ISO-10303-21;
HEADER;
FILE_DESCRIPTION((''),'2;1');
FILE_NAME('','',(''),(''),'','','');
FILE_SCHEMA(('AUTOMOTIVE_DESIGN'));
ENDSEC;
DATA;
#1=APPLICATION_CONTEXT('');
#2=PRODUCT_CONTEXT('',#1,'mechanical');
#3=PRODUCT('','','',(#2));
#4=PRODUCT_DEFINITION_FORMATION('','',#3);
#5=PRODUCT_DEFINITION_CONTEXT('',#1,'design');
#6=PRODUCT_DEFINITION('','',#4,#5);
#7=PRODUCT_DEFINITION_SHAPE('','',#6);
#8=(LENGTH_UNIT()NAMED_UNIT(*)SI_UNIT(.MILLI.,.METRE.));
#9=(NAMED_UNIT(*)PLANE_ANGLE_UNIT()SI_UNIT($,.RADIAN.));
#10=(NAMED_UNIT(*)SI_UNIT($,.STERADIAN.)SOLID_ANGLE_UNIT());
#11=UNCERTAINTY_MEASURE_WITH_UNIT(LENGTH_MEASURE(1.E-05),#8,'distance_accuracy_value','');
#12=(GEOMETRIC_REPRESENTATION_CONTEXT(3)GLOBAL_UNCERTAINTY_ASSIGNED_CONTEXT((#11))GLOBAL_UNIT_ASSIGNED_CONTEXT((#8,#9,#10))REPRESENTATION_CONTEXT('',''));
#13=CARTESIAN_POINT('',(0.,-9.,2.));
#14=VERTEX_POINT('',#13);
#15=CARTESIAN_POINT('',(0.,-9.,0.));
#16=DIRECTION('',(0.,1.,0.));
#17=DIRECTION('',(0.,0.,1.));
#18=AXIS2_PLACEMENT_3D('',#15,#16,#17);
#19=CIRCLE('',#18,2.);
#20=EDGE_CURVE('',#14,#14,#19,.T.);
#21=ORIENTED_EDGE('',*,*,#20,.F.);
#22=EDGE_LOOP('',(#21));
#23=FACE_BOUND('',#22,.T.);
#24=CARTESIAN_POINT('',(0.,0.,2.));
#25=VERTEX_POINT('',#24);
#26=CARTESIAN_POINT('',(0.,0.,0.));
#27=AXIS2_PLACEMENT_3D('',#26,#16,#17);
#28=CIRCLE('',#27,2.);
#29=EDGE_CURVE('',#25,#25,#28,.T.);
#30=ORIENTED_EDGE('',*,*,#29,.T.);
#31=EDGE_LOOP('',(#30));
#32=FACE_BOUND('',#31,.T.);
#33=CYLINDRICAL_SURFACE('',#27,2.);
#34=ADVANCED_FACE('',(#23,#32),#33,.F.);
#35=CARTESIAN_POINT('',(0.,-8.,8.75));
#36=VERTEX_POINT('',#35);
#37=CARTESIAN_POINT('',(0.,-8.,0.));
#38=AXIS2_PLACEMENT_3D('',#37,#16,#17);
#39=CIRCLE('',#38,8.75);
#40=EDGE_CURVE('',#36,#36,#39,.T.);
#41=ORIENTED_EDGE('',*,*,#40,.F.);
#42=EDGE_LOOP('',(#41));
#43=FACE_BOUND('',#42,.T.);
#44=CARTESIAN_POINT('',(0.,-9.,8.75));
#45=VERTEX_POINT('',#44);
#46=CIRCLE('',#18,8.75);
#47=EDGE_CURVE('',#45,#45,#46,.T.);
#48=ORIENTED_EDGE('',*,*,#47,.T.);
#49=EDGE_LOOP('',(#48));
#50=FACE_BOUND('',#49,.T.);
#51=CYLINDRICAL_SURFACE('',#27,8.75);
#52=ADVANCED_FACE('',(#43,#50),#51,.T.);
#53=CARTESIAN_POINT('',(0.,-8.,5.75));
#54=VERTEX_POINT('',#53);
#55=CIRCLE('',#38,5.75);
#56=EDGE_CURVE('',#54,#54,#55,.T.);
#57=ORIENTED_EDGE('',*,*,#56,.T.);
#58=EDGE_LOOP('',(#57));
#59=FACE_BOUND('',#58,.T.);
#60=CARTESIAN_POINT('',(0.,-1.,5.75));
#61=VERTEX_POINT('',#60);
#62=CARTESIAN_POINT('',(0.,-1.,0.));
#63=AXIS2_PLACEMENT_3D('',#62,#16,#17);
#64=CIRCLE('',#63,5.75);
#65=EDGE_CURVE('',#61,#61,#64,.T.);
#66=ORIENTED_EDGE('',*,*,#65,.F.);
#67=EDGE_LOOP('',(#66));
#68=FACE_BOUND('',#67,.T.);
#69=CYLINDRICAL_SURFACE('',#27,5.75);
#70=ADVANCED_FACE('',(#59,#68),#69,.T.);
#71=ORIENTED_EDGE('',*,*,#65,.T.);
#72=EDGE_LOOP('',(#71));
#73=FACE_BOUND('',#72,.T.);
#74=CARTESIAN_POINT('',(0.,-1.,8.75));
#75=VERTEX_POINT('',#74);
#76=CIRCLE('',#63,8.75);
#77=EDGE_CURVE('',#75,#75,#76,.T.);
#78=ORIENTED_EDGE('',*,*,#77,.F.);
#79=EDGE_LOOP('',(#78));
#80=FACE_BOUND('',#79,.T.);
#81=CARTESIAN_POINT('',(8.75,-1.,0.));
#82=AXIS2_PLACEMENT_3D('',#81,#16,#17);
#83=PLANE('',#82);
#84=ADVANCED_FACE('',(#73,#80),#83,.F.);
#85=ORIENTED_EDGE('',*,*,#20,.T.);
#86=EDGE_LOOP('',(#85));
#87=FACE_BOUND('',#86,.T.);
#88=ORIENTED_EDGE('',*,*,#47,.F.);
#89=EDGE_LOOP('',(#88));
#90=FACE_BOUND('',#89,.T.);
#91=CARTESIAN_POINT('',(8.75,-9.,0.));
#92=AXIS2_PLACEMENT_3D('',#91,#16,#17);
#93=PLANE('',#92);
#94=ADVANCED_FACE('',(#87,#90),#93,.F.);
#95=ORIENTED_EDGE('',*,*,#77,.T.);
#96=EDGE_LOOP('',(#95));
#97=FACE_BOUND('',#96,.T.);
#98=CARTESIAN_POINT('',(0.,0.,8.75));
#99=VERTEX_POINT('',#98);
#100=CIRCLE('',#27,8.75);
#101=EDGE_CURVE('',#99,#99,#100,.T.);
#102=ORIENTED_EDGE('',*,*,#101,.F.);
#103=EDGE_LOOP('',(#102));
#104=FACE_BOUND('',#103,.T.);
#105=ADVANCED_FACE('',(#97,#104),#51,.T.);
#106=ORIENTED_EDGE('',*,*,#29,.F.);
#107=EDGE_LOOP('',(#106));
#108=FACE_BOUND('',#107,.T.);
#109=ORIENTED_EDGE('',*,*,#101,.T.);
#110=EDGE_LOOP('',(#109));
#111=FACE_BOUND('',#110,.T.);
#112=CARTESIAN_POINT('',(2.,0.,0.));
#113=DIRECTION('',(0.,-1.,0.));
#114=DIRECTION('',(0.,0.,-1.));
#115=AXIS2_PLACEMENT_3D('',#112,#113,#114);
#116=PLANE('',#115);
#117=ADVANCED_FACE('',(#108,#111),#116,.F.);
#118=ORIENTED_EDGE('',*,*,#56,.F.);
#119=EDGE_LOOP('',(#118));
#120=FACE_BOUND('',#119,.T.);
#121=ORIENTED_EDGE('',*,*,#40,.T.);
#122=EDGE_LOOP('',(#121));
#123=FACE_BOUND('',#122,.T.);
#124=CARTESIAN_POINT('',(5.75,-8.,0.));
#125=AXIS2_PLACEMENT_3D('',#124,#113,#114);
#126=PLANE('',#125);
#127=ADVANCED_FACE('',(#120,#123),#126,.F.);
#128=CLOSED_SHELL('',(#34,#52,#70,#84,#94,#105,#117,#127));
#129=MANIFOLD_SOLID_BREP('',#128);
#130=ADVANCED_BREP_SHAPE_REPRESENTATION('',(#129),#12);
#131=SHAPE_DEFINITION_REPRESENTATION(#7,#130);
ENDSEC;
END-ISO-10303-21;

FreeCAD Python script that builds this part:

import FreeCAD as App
import Part
import Sketcher

V = App.Vector
Q = App.Units.Quantity

doc = App.newDocument("Part")
body = doc.addObject("PartDesign::Body", "Body")

sketch1 = body.newObject("Sketcher::SketchObject", "Sketch")
sketch1.AttachmentSupport = (doc.getObject("XY_Plane"), [""])
sketch1.MapMode = "FlatFace"
sketch1.addGeometry([
    Part.LineSegment(V(8.8, 0, 0), V(2, 0, 0)),
    Part.LineSegment(V(2, 0, 0), V(2, -9, 0)),
    Part.LineSegment(V(2, -9, 0), V(8.8, -9, 0)),
    Part.LineSegment(V(8.8, -9, 0), V(8.8, -8, 0)),
    Part.LineSegment(V(8.8, -8, 0), V(5.8, -8, 0)),
    Part.LineSegment(V(5.8, -8, 0), V(5.8, -1, 0)),
    Part.LineSegment(V(5.8, -1, 0), V(8.8, -1, 0)),
    Part.LineSegment(V(8.8, -1, 0), V(8.8, 0, 0)),
], False)
sketch1.addConstraint([
    Sketcher.Constraint("Coincident", 0, 2, 1, 1),
    Sketcher.Constraint("Coincident", 1, 2, 2, 1),
    Sketcher.Constraint("Coincident", 2, 2, 3, 1),
    Sketcher.Constraint("Coincident", 3, 2, 4, 1),
    Sketcher.Constraint("Coincident", 4, 2, 5, 1),
    Sketcher.Constraint("Coincident", 5, 2, 6, 1),
    Sketcher.Constraint("Coincident", 6, 2, 7, 1),
    Sketcher.Constraint("Coincident", 7, 2, 0, 1),
    Sketcher.Constraint("Horizontal", 0),
    Sketcher.Constraint("Vertical", 1),
    Sketcher.Constraint("Horizontal", 2),
    Sketcher.Constraint("Vertical", 3),
    Sketcher.Constraint("Horizontal", 4),
    Sketcher.Constraint("Vertical", 5),
    Sketcher.Constraint("Horizontal", 6),
    Sketcher.Constraint("Vertical", 7),
    Sketcher.Constraint("PointOnObject", 0, 2, -1),
    Sketcher.Constraint("Vertical", 3, 2, 6, 2),
    Sketcher.Constraint("Equal", 3, 7),
    Sketcher.Constraint("DistanceX", 4, 2, 4, 1, Q("3 mm")),
    Sketcher.Constraint("DistanceY", 1, 2, 1, 1, Q("9 mm")),
    Sketcher.Constraint("DistanceY", 3, 1, 3, 2, Q("1 mm")),
    Sketcher.Constraint("DistanceX", -1, 1, 0, 2, Q("2 mm")),
    Sketcher.Constraint("DistanceX", 0, 2, 0, 1, Q("6.75 mm")),
])
revolution = body.newObject("PartDesign::Revolution", "Revolution")
revolution.Profile = sketch1
revolution.ReferenceAxis = (sketch1, ["V_Axis"])
revolution.Angle = 360

doc.recompute()
